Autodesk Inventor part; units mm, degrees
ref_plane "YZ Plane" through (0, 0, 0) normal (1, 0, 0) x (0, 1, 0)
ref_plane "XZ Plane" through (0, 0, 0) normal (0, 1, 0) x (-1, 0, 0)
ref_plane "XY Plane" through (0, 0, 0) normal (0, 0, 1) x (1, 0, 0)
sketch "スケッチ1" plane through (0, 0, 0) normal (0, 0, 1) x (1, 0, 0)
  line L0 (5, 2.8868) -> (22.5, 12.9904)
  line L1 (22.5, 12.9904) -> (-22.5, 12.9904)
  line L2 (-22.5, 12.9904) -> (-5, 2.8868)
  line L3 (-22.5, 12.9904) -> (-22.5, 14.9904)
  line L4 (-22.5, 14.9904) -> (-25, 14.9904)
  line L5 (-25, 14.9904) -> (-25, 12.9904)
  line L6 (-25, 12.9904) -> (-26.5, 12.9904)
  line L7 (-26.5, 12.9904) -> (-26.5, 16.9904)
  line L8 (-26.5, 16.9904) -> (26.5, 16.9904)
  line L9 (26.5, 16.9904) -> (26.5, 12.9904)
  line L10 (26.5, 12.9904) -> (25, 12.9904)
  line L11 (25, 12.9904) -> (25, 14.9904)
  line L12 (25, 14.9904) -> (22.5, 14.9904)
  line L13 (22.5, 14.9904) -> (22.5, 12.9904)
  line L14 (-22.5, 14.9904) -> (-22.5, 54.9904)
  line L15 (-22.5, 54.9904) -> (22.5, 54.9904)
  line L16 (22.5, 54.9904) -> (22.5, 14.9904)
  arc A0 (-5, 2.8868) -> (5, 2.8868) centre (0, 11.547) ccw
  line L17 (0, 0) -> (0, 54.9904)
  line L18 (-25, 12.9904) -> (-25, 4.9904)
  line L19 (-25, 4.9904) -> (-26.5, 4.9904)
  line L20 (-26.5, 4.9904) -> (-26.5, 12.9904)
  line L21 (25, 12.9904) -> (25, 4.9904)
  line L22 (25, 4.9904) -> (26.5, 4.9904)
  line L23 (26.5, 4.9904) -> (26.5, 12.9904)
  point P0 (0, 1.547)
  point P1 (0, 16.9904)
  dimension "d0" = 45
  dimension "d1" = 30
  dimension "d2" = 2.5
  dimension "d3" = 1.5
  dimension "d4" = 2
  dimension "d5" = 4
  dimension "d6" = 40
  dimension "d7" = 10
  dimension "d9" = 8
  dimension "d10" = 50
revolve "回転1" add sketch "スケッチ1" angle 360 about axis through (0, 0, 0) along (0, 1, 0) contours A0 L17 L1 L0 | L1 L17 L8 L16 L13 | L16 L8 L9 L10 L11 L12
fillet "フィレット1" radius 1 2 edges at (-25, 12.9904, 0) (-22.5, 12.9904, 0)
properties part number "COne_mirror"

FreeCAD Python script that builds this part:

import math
import FreeCAD as App
import Part
import Sketcher
Q = App.Units.Quantity


def edges_at(feature, points):
    """Names of the edges that pass closest to the given points."""
    edges = feature.Shape.Edges
    near = lambda p: min(range(len(edges)), key=lambda i: edges[i].distToShape(Part.Vertex(*p))[0])
    return sorted({f"Edge{near(p) + 1}" for p in points})

doc = App.newDocument("Part")
body = doc.addObject("PartDesign::Body", "Body")

sketch1 = body.newObject("Sketcher::SketchObject", "Sketch")
sketch1.AttachmentSupport = (doc.getObject("XY_Plane"), [""])
sketch1.MapMode = "FlatFace"
sketch1.addGeometry([
    Part.ArcOfCircle(Part.Circle(App.Vector(0, 11.547, 0), App.Vector(0, 0, 1), 9.999953), math.radians(-90), math.radians(-59.999845)),
    Part.LineSegment(App.Vector(5, 2.8868, 0), App.Vector(22.5, 12.9904, 0)),
    Part.LineSegment(App.Vector(22.5, 12.9904, 0), App.Vector(22.5, 14.9904, 0)),
    Part.LineSegment(App.Vector(22.5, 14.9904, 0), App.Vector(25, 14.9904, 0)),
    Part.LineSegment(App.Vector(25, 14.9904, 0), App.Vector(25, 12.9904, 0)),
    Part.LineSegment(App.Vector(25, 12.9904, 0), App.Vector(26.5, 12.9904, 0)),
    Part.LineSegment(App.Vector(26.5, 12.9904, 0), App.Vector(26.5, 16.9904, 0)),
    Part.LineSegment(App.Vector(26.5, 16.9904, 0), App.Vector(0, 16.9904, 0)),
    Part.LineSegment(App.Vector(0, 16.9904, 0), App.Vector(0, 1.547047, 0)),
], False)
sketch1.addConstraint([
    Sketcher.Constraint("Tangent", 0, 2, 1, 1),
    Sketcher.Constraint("Coincident", 1, 2, 2, 1),
    Sketcher.Constraint("Coincident", 2, 2, 3, 1),
    Sketcher.Constraint("Coincident", 3, 2, 4, 1),
    Sketcher.Constraint("Coincident", 4, 2, 5, 1),
    Sketcher.Constraint("Coincident", 5, 2, 6, 1),
    Sketcher.Constraint("Coincident", 6, 2, 7, 1),
    Sketcher.Constraint("Coincident", 7, 2, 8, 1),
    Sketcher.Constraint("Coincident", 8, 2, 0, 1),
    Sketcher.Constraint("Vertical", 2),
    Sketcher.Constraint("Horizontal", 3),
    Sketcher.Constraint("Vertical", 4),
    Sketcher.Constraint("Horizontal", 5),
    Sketcher.Constraint("Vertical", 6),
    Sketcher.Constraint("Horizontal", 7),
    Sketcher.Constraint("Vertical", 8),
    Sketcher.Constraint("PointOnObject", 0, 3, -2),
    Sketcher.Constraint("PointOnObject", 7, 2, -2),
    Sketcher.Constraint("Horizontal", 1, 2, 4, 2),
    Sketcher.Constraint("Radius", 0, 10.0),
    Sketcher.Constraint("DistanceY", 2, 1, 2, 2, 2.0),
    Sketcher.Constraint("DistanceY", 6, 1, 6, 2, 4.0),
    Sketcher.Constraint("Angle", 1, Q("30 deg")),
    Sketcher.Constraint("DistanceX", 3, 1, 3, 2, 2.5),
    Sketcher.Constraint("DistanceX", 5, 1, 5, 2, 1.5),
    Sketcher.Constraint("DistanceX", 7, 2, 7, 1, 26.5),
    Sketcher.Constraint("DistanceY", -1, 1, 0, 3, 11.547),
])
revolution = body.newObject("PartDesign::Revolution", "Revolution")
revolution.Profile = sketch1
revolution.ReferenceAxis = (sketch1, ["V_Axis"])
revolution.Angle = 360
doc.recompute()

fillet = body.newObject("PartDesign::Fillet", "Fillet")
fillet.Base = (revolution, edges_at(revolution, [(-25, 12.99, 0), (-22.5, 12.99, 0)]))
fillet.Radius = 1

doc.recompute()
